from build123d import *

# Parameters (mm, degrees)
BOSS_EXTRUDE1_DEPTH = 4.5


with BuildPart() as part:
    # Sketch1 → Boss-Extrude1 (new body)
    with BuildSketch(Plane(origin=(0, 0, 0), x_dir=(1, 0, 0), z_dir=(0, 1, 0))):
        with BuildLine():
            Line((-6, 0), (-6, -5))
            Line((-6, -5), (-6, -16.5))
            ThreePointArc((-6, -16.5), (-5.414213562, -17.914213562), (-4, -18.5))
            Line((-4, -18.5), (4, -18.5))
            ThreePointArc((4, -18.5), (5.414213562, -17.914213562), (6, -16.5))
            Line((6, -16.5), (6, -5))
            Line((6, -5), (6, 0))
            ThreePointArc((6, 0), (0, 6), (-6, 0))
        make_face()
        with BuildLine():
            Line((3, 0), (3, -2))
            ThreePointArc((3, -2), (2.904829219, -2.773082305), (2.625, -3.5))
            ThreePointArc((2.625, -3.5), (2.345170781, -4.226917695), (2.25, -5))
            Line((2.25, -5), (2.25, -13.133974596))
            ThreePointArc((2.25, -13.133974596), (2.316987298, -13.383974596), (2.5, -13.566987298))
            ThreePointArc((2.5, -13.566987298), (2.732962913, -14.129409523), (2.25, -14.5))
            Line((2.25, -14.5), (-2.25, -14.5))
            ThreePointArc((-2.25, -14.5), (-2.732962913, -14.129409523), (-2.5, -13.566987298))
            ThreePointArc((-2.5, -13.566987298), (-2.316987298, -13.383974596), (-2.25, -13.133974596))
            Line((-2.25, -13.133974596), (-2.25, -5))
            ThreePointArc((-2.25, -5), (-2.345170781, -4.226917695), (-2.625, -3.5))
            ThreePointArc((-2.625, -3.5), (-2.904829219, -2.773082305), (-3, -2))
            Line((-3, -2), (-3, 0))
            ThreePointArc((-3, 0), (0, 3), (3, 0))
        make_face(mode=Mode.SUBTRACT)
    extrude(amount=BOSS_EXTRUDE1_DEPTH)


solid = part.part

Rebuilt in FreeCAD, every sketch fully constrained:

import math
import FreeCAD as App
import Part
import Sketcher

V = App.Vector
Q = App.Units.Quantity

doc = App.newDocument("Part")
body = doc.addObject("PartDesign::Body", "Body")

# Sketch on XZ plane
sketch1 = body.newObject("Sketcher::SketchObject", "Sketch")
sketch1.AttachmentSupport = (doc.getObject("XZ_Plane"), [""])
sketch1.MapMode = "FlatFace"
sketch1.addGeometry(Part.LineSegment(V(-6, 0, 0), V(-6, 16.5, 0)), False)
sketch1.addGeometry(Part.ArcOfCircle(Part.Circle(V(-4, 16.5, 0), V(0, 0, 1), 2), math.radians(90), math.radians(180)), False)
sketch1.addGeometry(Part.LineSegment(V(-4, 18.5, 0), V(4, 18.5, 0)), False)
sketch1.addGeometry(Part.ArcOfCircle(Part.Circle(V(4, 16.5, 0), V(0, 0, 1), 2), math.radians(0), math.radians(90)), False)
sketch1.addGeometry(Part.LineSegment(V(6, 16.5, 0), V(6, 0, 0)), False)
sketch1.addGeometry(Part.ArcOfCircle(Part.Circle(V(0, 0, 0), V(0, 0, 1), 6), math.radians(180), math.radians(360)), False)
sketch1.addGeometry(Part.ArcOfCircle(Part.Circle(V(0, 0, 0), V(0, 0, 1), 3), math.radians(180), math.radians(360)), False)
sketch1.addGeometry(Part.LineSegment(V(3, 0, 0), V(3, 2, 0)), False)
sketch1.addGeometry(Part.ArcOfCircle(Part.Circle(V(-0.2, 2, 0), V(0, 0, 1), 3.2), math.radians(0), math.radians(28)), False)
sketch1.addGeometry(Part.ArcOfCircle(Part.Circle(V(5.4, 5, 0), V(0, 0, 1), 3.2), math.radians(-180), math.radians(-152)), False)
sketch1.addGeometry(Part.LineSegment(V(2.2, 5, 0), V(2.2, 13.1, 0)), False)
sketch1.addGeometry(Part.ArcOfCircle(Part.Circle(V(2.8, 13.1, 0), V(0, 0, 1), 0.5), math.radians(120), math.radians(180)), False)
sketch1.addGeometry(Part.ArcOfCircle(Part.Circle(V(2.2, 14, 0), V(0, 0, 1), 0.5), math.radians(-60), math.radians(90)), False)
sketch1.addGeometry(Part.LineSegment(V(2.2, 14.5, 0), V(-2.2, 14.5, 0)), False)
sketch1.addGeometry(Part.ArcOfCircle(Part.Circle(V(-2.2, 14, 0), V(0, 0, 1), 0.5), math.radians(90), math.radians(240)), False)
sketch1.addGeometry(Part.ArcOfCircle(Part.Circle(V(-2.8, 13.1, 0), V(0, 0, 1), 0.5), math.radians(0), math.radians(60)), False)
sketch1.addGeometry(Part.LineSegment(V(-2.2, 13.1, 0), V(-2.2, 5, 0)), False)
sketch1.addGeometry(Part.ArcOfCircle(Part.Circle(V(-5.4, 5, 0), V(0, 0, 1), 3.2), math.radians(-28), math.radians(0)), False)
sketch1.addGeometry(Part.ArcOfCircle(Part.Circle(V(0.2, 2, 0), V(0, 0, 1), 3.2), math.radians(152), math.radians(180)), False)
sketch1.addGeometry(Part.LineSegment(V(-3, 2, 0), V(-3, 0, 0)), False)
sketch1.addConstraint(Sketcher.Constraint("Tangent", 0, 2, 1, 2))
sketch1.addConstraint(Sketcher.Constraint("Tangent", 1, 1, 2, 1))
sketch1.addConstraint(Sketcher.Constraint("Tangent", 2, 2, 3, 2))
sketch1.addConstraint(Sketcher.Constraint("Tangent", 3, 1, 4, 1))
sketch1.addConstraint(Sketcher.Constraint("Tangent", 4, 2, 5, 2))
sketch1.addConstraint(Sketcher.Constraint("Tangent", 5, 1, 0, 1))
sketch1.addConstraint(Sketcher.Constraint("Tangent", 6, 2, 7, 1))
sketch1.addConstraint(Sketcher.Constraint("Tangent", 7, 2, 8, 1))
sketch1.addConstraint(Sketcher.Constraint("Tangent", 8, 2, 9, 2))
sketch1.addConstraint(Sketcher.Constraint("Tangent", 9, 1, 10, 1))
sketch1.addConstraint(Sketcher.Constraint("Tangent", 10, 2, 11, 2))
sketch1.addConstraint(Sketcher.Constraint("Tangent", 11, 1, 12, 1))
sketch1.addConstraint(Sketcher.Constraint("Tangent", 12, 2, 13, 1))
sketch1.addConstraint(Sketcher.Constraint("Tangent", 13, 2, 14, 1))
sketch1.addConstraint(Sketcher.Constraint("Tangent", 14, 2, 15, 2))
sketch1.addConstraint(Sketcher.Constraint("Tangent", 15, 1, 16, 1))
sketch1.addConstraint(Sketcher.Constraint("Tangent", 16, 2, 17, 2))
sketch1.addConstraint(Sketcher.Constraint("Tangent", 17, 1, 18, 1))
sketch1.addConstraint(Sketcher.Constraint("Tangent", 18, 2, 19, 1))
sketch1.addConstraint(Sketcher.Constraint("Tangent", 19, 2, 6, 1))
sketch1.addConstraint(Sketcher.Constraint("Vertical", 0))
sketch1.addConstraint(Sketcher.Constraint("Horizontal", 2))
sketch1.addConstraint(Sketcher.Constraint("Vertical", 4))
sketch1.addConstraint(Sketcher.Constraint("Vertical", 7))
sketch1.addConstraint(Sketcher.Constraint("Vertical", 10))
sketch1.addConstraint(Sketcher.Constraint("Horizontal", 13))
sketch1.addConstraint(Sketcher.Constraint("Vertical", 16))
sketch1.addConstraint(Sketcher.Constraint("Vertical", 19))
sketch1.addConstraint(Sketcher.Constraint("Coincident", 5, 3, -1, 1))
sketch1.addConstraint(Sketcher.Constraint("Coincident", 6, 3, -1, 1))
sketch1.addConstraint(Sketcher.Constraint("Equal", 1, 3))
sketch1.addConstraint(Sketcher.Constraint("Equal", 8, 9))
sketch1.addConstraint(Sketcher.Constraint("Equal", 11, 12))
sketch1.addConstraint(Sketcher.Constraint("Equal", 12, 14))
sketch1.addConstraint(Sketcher.Constraint("Equal", 14, 15))
sketch1.addConstraint(Sketcher.Constraint("Equal", 9, 17))
sketch1.addConstraint(Sketcher.Constraint("Equal", 17, 18))
sketch1.addConstraint(Sketcher.Constraint("Symmetric", 11, 3, 15, 3, -2))
sketch1.addConstraint(Sketcher.Constraint("Horizontal", 9, 3, 17, 3))
sketch1.addConstraint(Sketcher.Constraint("Vertical", 12, 3, 9, 1))
sketch1.addConstraint(Sketcher.Constraint("Radius", 1, Q("2 mm")))
sketch1.addConstraint(Sketcher.Constraint("Radius", 5, Q("6 mm")))
sketch1.addConstraint(Sketcher.Constraint("Radius", 6, Q("3 mm")))
sketch1.addConstraint(Sketcher.Constraint("Radius", 11, Q("0.5 mm")))
sketch1.addConstraint(Sketcher.Constraint("DistanceY", 7, 1, 7, 2, Q("2 mm")))
sketch1.addConstraint(Sketcher.Constraint("DistanceX", 13, 2, 13, 1, Q("4.5 mm")))
sketch1.addConstraint(Sketcher.Constraint("DistanceY", 0, 1, 0, 2, Q("16.5 mm")))
sketch1.addConstraint(Sketcher.Constraint("DistanceY", -1, 1, 9, 3, Q("5 mm")))
sketch1.addConstraint(Sketcher.Constraint("DistanceY", -1, 1, 12, 3, Q("14 mm")))
pad1 = body.newObject("PartDesign::Pad", "Pad")
pad1.Profile = sketch1
pad1.Length = 4.5
pad1.Reversed = True

doc.recompute()
